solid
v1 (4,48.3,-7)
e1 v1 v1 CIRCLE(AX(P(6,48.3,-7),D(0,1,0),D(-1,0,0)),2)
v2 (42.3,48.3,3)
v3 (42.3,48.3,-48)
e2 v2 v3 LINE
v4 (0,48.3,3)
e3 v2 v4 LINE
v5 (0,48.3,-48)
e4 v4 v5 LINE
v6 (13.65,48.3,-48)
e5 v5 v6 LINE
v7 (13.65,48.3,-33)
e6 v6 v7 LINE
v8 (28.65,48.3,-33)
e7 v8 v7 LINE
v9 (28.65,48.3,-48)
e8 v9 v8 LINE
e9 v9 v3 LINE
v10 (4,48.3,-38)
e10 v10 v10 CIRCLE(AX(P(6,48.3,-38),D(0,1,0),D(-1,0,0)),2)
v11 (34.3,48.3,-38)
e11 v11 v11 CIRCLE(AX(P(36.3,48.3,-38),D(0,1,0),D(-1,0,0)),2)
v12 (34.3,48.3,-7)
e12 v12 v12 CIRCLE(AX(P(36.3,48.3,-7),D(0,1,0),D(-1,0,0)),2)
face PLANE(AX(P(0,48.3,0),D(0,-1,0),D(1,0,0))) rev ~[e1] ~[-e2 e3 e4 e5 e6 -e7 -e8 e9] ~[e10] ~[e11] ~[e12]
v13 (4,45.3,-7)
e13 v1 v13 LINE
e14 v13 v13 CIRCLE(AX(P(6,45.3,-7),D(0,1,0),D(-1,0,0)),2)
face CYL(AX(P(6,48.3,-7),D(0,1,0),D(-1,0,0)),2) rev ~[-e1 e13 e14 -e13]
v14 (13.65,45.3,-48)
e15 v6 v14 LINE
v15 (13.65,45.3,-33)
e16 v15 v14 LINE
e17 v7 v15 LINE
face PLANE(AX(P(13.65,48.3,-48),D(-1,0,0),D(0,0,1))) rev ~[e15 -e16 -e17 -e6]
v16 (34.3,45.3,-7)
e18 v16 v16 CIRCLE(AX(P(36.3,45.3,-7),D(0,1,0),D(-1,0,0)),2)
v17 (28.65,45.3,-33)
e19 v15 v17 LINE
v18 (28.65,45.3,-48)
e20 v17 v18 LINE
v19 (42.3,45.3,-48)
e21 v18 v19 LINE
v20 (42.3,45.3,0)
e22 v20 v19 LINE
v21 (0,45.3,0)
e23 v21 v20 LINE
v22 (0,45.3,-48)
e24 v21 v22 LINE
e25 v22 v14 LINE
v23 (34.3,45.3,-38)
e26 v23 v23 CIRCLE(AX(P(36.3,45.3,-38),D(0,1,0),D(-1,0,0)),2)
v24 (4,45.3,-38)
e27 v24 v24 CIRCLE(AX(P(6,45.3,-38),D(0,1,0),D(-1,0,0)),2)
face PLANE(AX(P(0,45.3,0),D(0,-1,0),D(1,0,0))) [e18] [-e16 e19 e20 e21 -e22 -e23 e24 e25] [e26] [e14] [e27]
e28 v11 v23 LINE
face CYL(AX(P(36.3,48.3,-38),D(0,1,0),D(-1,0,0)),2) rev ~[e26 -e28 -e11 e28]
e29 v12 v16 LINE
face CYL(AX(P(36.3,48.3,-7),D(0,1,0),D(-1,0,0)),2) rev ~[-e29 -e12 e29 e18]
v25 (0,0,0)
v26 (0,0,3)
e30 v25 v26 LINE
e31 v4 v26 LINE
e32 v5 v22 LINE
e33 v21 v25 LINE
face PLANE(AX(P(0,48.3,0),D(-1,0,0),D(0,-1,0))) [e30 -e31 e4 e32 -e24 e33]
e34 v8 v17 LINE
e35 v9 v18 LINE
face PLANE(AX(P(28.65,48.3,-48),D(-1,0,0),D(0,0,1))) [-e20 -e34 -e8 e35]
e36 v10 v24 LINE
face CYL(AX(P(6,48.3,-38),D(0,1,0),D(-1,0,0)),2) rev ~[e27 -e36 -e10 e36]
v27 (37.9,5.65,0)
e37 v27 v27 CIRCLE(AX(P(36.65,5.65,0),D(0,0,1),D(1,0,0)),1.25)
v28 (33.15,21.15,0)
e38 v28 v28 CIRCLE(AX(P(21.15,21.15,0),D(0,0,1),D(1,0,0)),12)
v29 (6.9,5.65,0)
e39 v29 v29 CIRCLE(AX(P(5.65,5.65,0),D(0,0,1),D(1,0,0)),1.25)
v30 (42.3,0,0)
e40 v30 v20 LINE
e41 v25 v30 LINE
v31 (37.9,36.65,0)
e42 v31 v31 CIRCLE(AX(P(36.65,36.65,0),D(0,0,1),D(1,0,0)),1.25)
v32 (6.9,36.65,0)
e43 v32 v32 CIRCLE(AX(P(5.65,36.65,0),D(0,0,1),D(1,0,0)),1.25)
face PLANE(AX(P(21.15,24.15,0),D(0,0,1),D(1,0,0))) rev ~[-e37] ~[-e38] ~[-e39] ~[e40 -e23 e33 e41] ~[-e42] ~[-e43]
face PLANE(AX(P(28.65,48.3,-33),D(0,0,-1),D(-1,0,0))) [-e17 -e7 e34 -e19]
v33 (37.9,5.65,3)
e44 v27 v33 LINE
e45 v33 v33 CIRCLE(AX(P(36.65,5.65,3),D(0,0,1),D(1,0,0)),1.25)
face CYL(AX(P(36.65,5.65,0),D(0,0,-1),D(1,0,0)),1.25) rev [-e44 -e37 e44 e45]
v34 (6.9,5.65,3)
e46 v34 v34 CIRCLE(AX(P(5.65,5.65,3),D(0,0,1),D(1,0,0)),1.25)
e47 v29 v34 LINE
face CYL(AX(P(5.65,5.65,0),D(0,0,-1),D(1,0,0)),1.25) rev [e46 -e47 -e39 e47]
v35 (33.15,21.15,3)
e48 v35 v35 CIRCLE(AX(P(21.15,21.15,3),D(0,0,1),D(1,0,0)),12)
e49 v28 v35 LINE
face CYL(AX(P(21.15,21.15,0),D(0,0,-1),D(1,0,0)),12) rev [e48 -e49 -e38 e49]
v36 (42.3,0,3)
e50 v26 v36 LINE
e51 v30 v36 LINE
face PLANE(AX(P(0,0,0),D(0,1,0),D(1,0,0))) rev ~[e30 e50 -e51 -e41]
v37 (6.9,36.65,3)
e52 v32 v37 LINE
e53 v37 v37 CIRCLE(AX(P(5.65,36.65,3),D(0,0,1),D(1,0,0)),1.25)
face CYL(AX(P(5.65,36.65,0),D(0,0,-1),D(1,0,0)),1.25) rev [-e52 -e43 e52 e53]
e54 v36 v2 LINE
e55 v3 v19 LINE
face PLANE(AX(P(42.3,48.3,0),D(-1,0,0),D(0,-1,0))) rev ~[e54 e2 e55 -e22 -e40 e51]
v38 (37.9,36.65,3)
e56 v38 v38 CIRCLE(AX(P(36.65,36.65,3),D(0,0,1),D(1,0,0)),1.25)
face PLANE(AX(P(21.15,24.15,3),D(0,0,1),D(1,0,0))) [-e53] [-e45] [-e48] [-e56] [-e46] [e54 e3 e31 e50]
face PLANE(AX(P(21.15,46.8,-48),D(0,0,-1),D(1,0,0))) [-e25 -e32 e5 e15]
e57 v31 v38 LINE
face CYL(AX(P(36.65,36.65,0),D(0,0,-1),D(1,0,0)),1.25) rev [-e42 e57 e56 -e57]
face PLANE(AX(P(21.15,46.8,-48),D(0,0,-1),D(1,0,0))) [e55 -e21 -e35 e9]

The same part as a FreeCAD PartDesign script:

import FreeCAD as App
import Part
import Sketcher
Q = App.Units.Quantity

doc = App.newDocument("Part")
body = doc.addObject("PartDesign::Body", "Body")

sketch1 = doc.addObject("Sketcher::SketchObject", "Sketch")
body.addObject(sketch1)
sketch1.AttachmentSupport = (doc.XY_Plane, [""])
sketch1.MapMode = "FlatFace"
sketch1.addGeometry([
    Part.LineSegment(App.Vector(0, 0, 0), App.Vector(42.3, 0, 0)),
    Part.LineSegment(App.Vector(42.3, 0, 0), App.Vector(42.3, 48.3, 0)),
    Part.LineSegment(App.Vector(42.3, 48.3, 0), App.Vector(0, 48.3, 0)),
    Part.LineSegment(App.Vector(0, 48.3, 0), App.Vector(0, 0, 0)),
    Part.Circle(App.Vector(5.7, 5.7, 0), App.Vector(0, 0, 1), 1.2),
    Part.Circle(App.Vector(21.1, 21.1, 0), App.Vector(0, 0, 1), 12),
    Part.Circle(App.Vector(36.6, 5.7, 0), App.Vector(0, 0, 1), 1.2),
    Part.Circle(App.Vector(5.7, 36.6, 0), App.Vector(0, 0, 1), 1.2),
    Part.Circle(App.Vector(36.6, 36.6, 0), App.Vector(0, 0, 1), 1.2),
], False)
sketch1.addConstraint([
    Sketcher.Constraint("Coincident", 0, 2, 1, 1),
    Sketcher.Constraint("Coincident", 1, 2, 2, 1),
    Sketcher.Constraint("Coincident", 2, 2, 3, 1),
    Sketcher.Constraint("Coincident", 3, 2, 0, 1),
    Sketcher.Constraint("Horizontal", 0),
    Sketcher.Constraint("Vertical", 1),
    Sketcher.Constraint("Horizontal", 2),
    Sketcher.Constraint("Vertical", 3),
    Sketcher.Constraint("Coincident", 3, 2, -1, 1),
    Sketcher.Constraint("Equal", 4, 6),
    Sketcher.Constraint("Equal", 6, 7),
    Sketcher.Constraint("Equal", 7, 8),
    Sketcher.Constraint("Horizontal", 4, 3, 6, 3),
    Sketcher.Constraint("Horizontal", 7, 3, 8, 3),
    Sketcher.Constraint("Vertical", 4, 3, 7, 3),
    Sketcher.Constraint("Vertical", 6, 3, 8, 3),
    Sketcher.Constraint("Diameter", 5, Q("24 mm")),
    Sketcher.Constraint("Diameter", 4, Q("2.5 mm")),
    Sketcher.Constraint("DistanceX", 0, 1, 0, 2, Q("42.3 mm")),
    Sketcher.Constraint("DistanceY", 1, 1, 1, 2, Q("48.3 mm")),
    Sketcher.Constraint("DistanceX", 4, 3, 6, 3, Q("31 mm")),
    Sketcher.Constraint("DistanceY", 4, 3, 7, 3, Q("31 mm")),
    Sketcher.Constraint("DistanceX", 4, 3, 5, 3, Q("15.5 mm")),
    Sketcher.Constraint("DistanceY", 4, 3, 5, 3, Q("15.5 mm")),
    Sketcher.Constraint("DistanceX", -1, 1, 4, 3, Q("5.65 mm")),
    Sketcher.Constraint("DistanceY", -1, 1, 4, 3, Q("5.65 mm")),
])
pad1 = doc.addObject("PartDesign::Pad", "Pad")
body.addObject(pad1)
pad1.Profile = sketch1
pad1.Length = 3

sketch2 = doc.addObject("Sketcher::SketchObject", "Sketch001")
body.addObject(sketch2)
sketch2.AttachmentSupport = (doc.XY_Plane, [""])
sketch2.MapMode = "FlatFace"
sketch2.addGeometry([
    Part.LineSegment(App.Vector(0, 45.3, 0), App.Vector(0, 48.3, 0)),
    Part.LineSegment(App.Vector(0, 48.3, 0), App.Vector(42.3, 48.3, 0)),
    Part.LineSegment(App.Vector(42.3, 48.3, 0), App.Vector(42.3, 45.3, 0)),
    Part.LineSegment(App.Vector(42.3, 45.3, 0), App.Vector(0, 45.3, 0)),
], False)
sketch2.addConstraint([
    Sketcher.Constraint("Coincident", 0, 2, 1, 1),
    Sketcher.Constraint("Coincident", 1, 2, 2, 1),
    Sketcher.Constraint("Coincident", 2, 2, 3, 1),
    Sketcher.Constraint("Coincident", 3, 2, 0, 1),
    Sketcher.Constraint("Vertical", 0),
    Sketcher.Constraint("Horizontal", 1),
    Sketcher.Constraint("Vertical", 2),
    Sketcher.Constraint("Horizontal", 3),
    Sketcher.Constraint("PointOnObject", 0, 2, -2),
    Sketcher.Constraint("DistanceY", 0, 1, 0, 2, Q("3 mm")),
    Sketcher.Constraint("DistanceX", 1, 1, 1, 2, Q("42.3 mm")),
    Sketcher.Constraint("DistanceY", -1, 1, 0, 2, Q("48.3 mm")),
])
pad2 = doc.addObject("PartDesign::Pad", "Pad001")
body.addObject(pad2)
pad2.Profile = sketch2
pad2.Length = 48
pad2.Reversed = True

sketch3 = doc.addObject("Sketcher::SketchObject", "Sketch002")
body.addObject(sketch3)
sketch3.AttachmentSupport = (doc.XZ_Plane, [""])
sketch3.MapMode = "FlatFace"
sketch3.AttachmentOffset = App.Placement(App.Vector(0, 0, -48.3), App.Rotation())
sketch3.addGeometry([
    Part.Circle(App.Vector(36.3, -7, 0), App.Vector(0, 0, 1), 2),
    Part.Circle(App.Vector(6, -7, 0), App.Vector(0, 0, 1), 2),
    Part.Circle(App.Vector(36.3, -38, 0), App.Vector(0, 0, 1), 2),
    Part.Circle(App.Vector(6, -38, 0), App.Vector(0, 0, 1), 2),
    Part.LineSegment(App.Vector(28.6, -33, 0), App.Vector(28.6, -48, 0)),
    Part.LineSegment(App.Vector(28.6, -48, 0), App.Vector(13.7, -48, 0)),
    Part.LineSegment(App.Vector(13.7, -48, 0), App.Vector(13.7, -33, 0)),
    Part.LineSegment(App.Vector(13.7, -33, 0), App.Vector(28.6, -33, 0)),
], False)
sketch3.addConstraint([
    Sketcher.Constraint("Coincident", 4, 2, 5, 1),
    Sketcher.Constraint("Coincident", 5, 2, 6, 1),
    Sketcher.Constraint("Coincident", 6, 2, 7, 1),
    Sketcher.Constraint("Coincident", 7, 2, 4, 1),
    Sketcher.Constraint("Vertical", 4),
    Sketcher.Constraint("Horizontal", 5),
    Sketcher.Constraint("Vertical", 6),
    Sketcher.Constraint("Horizontal", 7),
    Sketcher.Constraint("Equal", 0, 1),
    Sketcher.Constraint("Equal", 1, 2),
    Sketcher.Constraint("Equal", 2, 3),
    Sketcher.Constraint("Horizontal", 0, 3, 1, 3),
    Sketcher.Constraint("Horizontal", 2, 3, 3, 3),
    Sketcher.Constraint("Vertical", 0, 3, 2, 3),
    Sketcher.Constraint("Vertical", 1, 3, 3, 3),
    Sketcher.Constraint("Equal", 7, 4),
    Sketcher.Constraint("Diameter", 0, Q("4 mm")),
    Sketcher.Constraint("DistanceX", 5, 2, 5, 1, Q("15 mm")),
    Sketcher.Constraint("DistanceY", 0, 3, -1, 1, Q("7 mm")),
    Sketcher.Constraint("DistanceX", -1, 1, 1, 3, Q("6 mm")),
    Sketcher.Constraint("DistanceY", 2, 3, -1, 1, Q("38 mm")),
    Sketcher.Constraint("DistanceY", 4, 2, -1, 1, Q("48 mm")),
    Sketcher.Constraint("DistanceX", -1, 1, 0, 3, Q("36.3 mm")),
    Sketcher.Constraint("DistanceX", -1, 1, 4, 2, Q("28.65 mm")),
])
pocket1 = doc.addObject("PartDesign::Pocket", "Pocket")
body.addObject(pocket1)
pocket1.Profile = sketch3
pocket1.Type = "ThroughAll"
pocket1.Reversed = True

doc.recompute()
